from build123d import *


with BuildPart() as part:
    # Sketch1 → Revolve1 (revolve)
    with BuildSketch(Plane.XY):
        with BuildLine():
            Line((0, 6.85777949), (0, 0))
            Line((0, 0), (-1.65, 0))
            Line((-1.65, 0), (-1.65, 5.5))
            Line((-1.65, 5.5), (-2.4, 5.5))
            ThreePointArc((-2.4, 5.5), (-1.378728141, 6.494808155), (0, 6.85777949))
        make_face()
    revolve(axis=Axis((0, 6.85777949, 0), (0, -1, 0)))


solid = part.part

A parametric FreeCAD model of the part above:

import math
import FreeCAD as App
import Part
import Sketcher

V = App.Vector

doc = App.newDocument("Part")
body = doc.addObject("PartDesign::Body", "Body")

sketch1 = body.newObject("Sketcher::SketchObject", "Sketch")
sketch1.AttachmentSupport = (doc.getObject("XY_Plane"), [""])
sketch1.MapMode = "FlatFace"
sketch1.addGeometry(Part.LineSegment(V(0, 0, 0), V(0, 6.9, 0)), False)
sketch1.addGeometry(Part.ArcOfCircle(Part.Circle(V(0, 4.1, 0), V(0, 0, 1), 2.8), math.radians(90), math.radians(149)), False)
sketch1.addGeometry(Part.LineSegment(V(-2.4, 5.5, 0), V(-1.6, 5.5, 0)), False)
sketch1.addGeometry(Part.LineSegment(V(-1.6, 5.5, 0), V(-1.6, 0, 0)), False)
sketch1.addGeometry(Part.LineSegment(V(-1.6, 0, 0), V(0, 0, 0)), False)
sketch1.addConstraint(Sketcher.Constraint("Coincident", 0, 2, 1, 1))
sketch1.addConstraint(Sketcher.Constraint("Coincident", 1, 2, 2, 1))
sketch1.addConstraint(Sketcher.Constraint("Coincident", 2, 2, 3, 1))
sketch1.addConstraint(Sketcher.Constraint("Coincident", 3, 2, 4, 1))
sketch1.addConstraint(Sketcher.Constraint("Coincident", 4, 2, 0, 1))
sketch1.addConstraint(Sketcher.Constraint("Vertical", 0))
sketch1.addConstraint(Sketcher.Constraint("Horizontal", 2))
sketch1.addConstraint(Sketcher.Constraint("Vertical", 3))
sketch1.addConstraint(Sketcher.Constraint("Horizontal", 4))
sketch1.addConstraint(Sketcher.Constraint("Coincident", 4, 2, -1, 1))
sketch1.addConstraint(Sketcher.Constraint("PointOnObject", 1, 3, -2))
sketch1.addConstraint(Sketcher.Constraint("Radius", 1, 2.8))
sketch1.addConstraint(Sketcher.Constraint("DistanceY", 3, 2, 3, 1, 5.5))
sketch1.addConstraint(Sketcher.Constraint("DistanceX", 2, 1, 2, 2, 0.75))
sketch1.addConstraint(Sketcher.Constraint("DistanceX", 4, 1, 4, 2, 1.65))
revolution = body.newObject("PartDesign::Revolution", "Revolution")
revolution.Profile = sketch1
revolution.ReferenceAxis = (sketch1, ["V_Axis"])
revolution.Angle = 360

doc.recompute()
